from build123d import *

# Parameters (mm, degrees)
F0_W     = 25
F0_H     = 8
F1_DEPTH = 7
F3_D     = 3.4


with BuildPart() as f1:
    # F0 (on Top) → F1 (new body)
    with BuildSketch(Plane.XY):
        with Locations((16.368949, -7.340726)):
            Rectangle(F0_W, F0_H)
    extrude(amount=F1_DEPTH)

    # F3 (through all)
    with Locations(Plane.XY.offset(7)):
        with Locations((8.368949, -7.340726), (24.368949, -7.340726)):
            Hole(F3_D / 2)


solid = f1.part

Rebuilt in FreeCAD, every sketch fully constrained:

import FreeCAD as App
import Part
import Sketcher


def add_polygon(sketch, points):
    """Adds a closed chain of lines whose ends are joined by coincident constraints."""
    first, n = sketch.GeometryCount, len(points)
    for a, b in zip(points, points[1:] + points[:1]):
        sketch.addGeometry(Part.LineSegment(App.Vector(*a, 0), App.Vector(*b, 0)), False)
    for i in range(n):
        sketch.addConstraint(Sketcher.Constraint("Coincident", first + i, 2, first + (i + 1) % n, 1))

doc = App.newDocument("Part")
params = doc.addObject("Spreadsheet::Sheet", "Params")
for row, (alias, value) in enumerate([
    ("sketch1_width", "25 mm"),
    ("sketch1_height", "8 mm"),
    ("pad1_length", "7 mm"),
    ("sketch2_diameter", "3.4 mm"),
    ("hole_diameter", "3.4 mm"),
], start=1):
    params.set(f"A{row}", alias)
    params.set(f"B{row}", "=" + value)
    params.setAlias(f"B{row}", alias)

body = doc.addObject("PartDesign::Body", "Body")

# Sketch on XY plane
sketch1 = doc.addObject("Sketcher::SketchObject", "Sketch")
body.addObject(sketch1)
sketch1.AttachmentSupport = (doc.XY_Plane, [""])
sketch1.MapMode = "FlatFace"
add_polygon(sketch1, [(3.868949, -3.340726), (3.868949, -11.340726), (28.868949, -11.340726), (28.868949, -3.340726)])  # lines 0-3
sketch1.addConstraint([
    Sketcher.Constraint("Vertical", 0),
    Sketcher.Constraint("Horizontal", 1),
    Sketcher.Constraint("Vertical", 2),
    Sketcher.Constraint("Horizontal", 3),
    Sketcher.Constraint("DistanceX", 1, 1, 1, 2, 25.0),
    Sketcher.Constraint("DistanceY", 0, 2, 0, 1, 8.0),
    Sketcher.Constraint("DistanceX", -1, 1, 0, 2, 3.868949),
    Sketcher.Constraint("DistanceY", 0, 2, -1, 1, 11.340726),
])
sketch1.setExpression("Constraints[8]", "Params.sketch1_width")
sketch1.setExpression("Constraints[9]", "Params.sketch1_height")
pad1 = doc.addObject("PartDesign::Pad", "Pad")
body.addObject(pad1)
pad1.Profile = sketch1
pad1.setExpression("Length", "Params.pad1_length")

# Sketch on XY plane
sketch2 = doc.addObject("Sketcher::SketchObject", "Sketch001")
body.addObject(sketch2)
sketch2.AttachmentSupport = (doc.XY_Plane, [""])
sketch2.MapMode = "FlatFace"
sketch2.AttachmentOffset = App.Placement(App.Vector(0, 0, 7), App.Rotation())
sketch2.addGeometry([
    Part.Circle(App.Vector(8.368949, -7.340726, 0), App.Vector(0, 0, 1), 1.7),
    Part.Circle(App.Vector(24.368949, -7.340726, 0), App.Vector(0, 0, 1), 1.7),
], False)
sketch2.addConstraint([
    Sketcher.Constraint("Equal", 0, 1),
    Sketcher.Constraint("Horizontal", 0, 3, 1, 3),
    Sketcher.Constraint("Diameter", 0, 3.4),
    Sketcher.Constraint("DistanceX", 0, 3, 1, 3, 16.0),
    Sketcher.Constraint("DistanceX", -1, 1, 0, 3, 8.368949),
    Sketcher.Constraint("DistanceY", 0, 3, -1, 1, 7.340726),
])
sketch2.setExpression("Constraints[2]", "Params.sketch2_diameter")
doc.recompute()
hole = doc.addObject("PartDesign::Hole", "Hole")
body.addObject(hole)
hole.Profile = sketch2
hole.ThreadType = "None"
hole.setExpression("Diameter", "Params.hole_diameter")
hole.DepthType = "ThroughAll"

doc.recompute()
